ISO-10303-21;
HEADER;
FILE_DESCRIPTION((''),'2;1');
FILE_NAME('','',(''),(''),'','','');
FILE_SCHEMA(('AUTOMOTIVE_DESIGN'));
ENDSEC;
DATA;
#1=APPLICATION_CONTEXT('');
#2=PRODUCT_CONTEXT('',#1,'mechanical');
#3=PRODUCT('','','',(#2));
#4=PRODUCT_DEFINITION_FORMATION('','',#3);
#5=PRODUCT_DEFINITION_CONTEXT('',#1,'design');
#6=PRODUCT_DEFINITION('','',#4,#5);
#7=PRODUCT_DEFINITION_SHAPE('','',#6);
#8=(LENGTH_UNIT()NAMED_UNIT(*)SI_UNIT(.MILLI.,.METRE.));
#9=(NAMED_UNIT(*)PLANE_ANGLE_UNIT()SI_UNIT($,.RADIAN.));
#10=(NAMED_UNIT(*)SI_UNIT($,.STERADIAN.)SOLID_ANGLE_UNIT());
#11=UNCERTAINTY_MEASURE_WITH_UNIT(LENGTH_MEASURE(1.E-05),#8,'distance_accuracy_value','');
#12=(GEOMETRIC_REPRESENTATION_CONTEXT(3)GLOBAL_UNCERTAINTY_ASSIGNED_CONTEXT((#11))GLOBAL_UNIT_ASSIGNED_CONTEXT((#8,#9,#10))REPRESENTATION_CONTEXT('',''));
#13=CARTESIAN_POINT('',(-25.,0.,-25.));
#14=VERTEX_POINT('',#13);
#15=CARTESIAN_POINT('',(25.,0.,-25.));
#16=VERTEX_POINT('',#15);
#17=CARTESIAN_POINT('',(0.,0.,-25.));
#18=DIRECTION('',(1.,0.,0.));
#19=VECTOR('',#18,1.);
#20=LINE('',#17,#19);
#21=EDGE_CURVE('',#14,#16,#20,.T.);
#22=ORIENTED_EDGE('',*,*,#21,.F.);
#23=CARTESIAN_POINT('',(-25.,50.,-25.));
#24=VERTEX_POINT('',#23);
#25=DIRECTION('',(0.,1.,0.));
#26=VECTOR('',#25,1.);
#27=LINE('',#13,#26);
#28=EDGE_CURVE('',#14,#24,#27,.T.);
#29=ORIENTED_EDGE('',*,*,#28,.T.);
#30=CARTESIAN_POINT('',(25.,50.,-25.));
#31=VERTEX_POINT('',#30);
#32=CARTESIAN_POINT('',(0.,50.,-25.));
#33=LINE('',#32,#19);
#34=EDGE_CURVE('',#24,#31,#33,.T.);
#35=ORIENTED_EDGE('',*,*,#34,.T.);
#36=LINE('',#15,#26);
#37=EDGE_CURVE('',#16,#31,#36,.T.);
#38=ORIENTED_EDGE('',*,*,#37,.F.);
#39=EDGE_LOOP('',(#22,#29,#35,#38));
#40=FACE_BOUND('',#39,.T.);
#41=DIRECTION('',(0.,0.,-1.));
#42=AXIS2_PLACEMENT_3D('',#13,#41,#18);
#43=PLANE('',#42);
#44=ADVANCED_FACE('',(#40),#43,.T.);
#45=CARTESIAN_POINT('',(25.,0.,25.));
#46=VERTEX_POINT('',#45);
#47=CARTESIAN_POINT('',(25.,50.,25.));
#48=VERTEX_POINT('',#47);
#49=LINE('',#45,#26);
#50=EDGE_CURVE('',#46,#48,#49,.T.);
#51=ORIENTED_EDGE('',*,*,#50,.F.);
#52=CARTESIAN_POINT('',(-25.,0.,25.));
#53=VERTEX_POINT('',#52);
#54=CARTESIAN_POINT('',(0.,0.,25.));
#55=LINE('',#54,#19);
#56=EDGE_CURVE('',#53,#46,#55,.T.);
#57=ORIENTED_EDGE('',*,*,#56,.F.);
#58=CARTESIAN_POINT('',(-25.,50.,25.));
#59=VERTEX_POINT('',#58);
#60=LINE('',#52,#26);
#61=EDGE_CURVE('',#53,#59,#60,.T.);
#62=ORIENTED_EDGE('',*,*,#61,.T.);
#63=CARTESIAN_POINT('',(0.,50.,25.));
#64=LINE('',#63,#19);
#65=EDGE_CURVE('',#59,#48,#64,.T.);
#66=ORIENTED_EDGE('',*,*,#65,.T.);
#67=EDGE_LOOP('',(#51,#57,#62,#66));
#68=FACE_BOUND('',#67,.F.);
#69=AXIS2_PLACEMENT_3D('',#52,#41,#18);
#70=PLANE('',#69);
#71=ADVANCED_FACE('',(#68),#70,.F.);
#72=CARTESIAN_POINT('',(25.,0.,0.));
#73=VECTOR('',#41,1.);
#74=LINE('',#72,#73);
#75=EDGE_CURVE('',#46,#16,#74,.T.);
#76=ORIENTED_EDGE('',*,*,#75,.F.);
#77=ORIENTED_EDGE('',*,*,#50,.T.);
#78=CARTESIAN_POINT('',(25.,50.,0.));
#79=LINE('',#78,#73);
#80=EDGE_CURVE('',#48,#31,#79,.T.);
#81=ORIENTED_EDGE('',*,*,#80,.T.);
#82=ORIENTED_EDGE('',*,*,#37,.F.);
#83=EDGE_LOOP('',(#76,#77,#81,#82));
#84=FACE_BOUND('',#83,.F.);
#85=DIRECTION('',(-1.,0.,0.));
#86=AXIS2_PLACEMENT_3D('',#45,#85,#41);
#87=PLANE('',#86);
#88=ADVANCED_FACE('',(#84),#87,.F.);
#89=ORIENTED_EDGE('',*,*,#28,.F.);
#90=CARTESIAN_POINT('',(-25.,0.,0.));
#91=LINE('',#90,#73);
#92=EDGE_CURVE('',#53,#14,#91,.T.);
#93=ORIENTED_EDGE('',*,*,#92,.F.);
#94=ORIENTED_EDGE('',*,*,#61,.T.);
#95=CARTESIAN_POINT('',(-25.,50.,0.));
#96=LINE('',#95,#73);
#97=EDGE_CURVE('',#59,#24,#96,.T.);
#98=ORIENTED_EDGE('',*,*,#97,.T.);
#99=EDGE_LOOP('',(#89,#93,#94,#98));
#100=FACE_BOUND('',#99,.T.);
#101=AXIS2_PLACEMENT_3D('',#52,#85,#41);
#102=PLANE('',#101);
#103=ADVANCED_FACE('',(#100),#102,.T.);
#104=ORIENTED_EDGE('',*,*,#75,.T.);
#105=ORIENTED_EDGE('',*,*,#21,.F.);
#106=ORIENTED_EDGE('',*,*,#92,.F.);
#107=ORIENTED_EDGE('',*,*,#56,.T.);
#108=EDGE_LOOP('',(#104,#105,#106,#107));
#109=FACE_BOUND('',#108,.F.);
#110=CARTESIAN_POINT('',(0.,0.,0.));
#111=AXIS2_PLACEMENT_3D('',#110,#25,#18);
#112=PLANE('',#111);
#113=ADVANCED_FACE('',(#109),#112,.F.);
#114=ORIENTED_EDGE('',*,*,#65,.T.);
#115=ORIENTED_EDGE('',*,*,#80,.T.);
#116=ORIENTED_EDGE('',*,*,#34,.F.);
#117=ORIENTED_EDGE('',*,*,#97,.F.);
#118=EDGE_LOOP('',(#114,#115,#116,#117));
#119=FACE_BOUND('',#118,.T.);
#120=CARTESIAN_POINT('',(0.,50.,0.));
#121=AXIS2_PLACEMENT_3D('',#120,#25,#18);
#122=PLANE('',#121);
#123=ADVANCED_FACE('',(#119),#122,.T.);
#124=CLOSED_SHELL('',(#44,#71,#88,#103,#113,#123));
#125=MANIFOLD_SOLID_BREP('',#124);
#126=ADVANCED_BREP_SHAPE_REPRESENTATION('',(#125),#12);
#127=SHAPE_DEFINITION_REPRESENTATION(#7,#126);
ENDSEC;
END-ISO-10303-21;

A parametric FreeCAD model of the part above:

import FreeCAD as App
import Part
import Sketcher
Q = App.Units.Quantity

doc = App.newDocument("Part")
body = doc.addObject("PartDesign::Body", "Body")

# Sketch on XZ plane
sketch1 = body.newObject("Sketcher::SketchObject", "Sketch")
sketch1.AttachmentSupport = (doc.getObject("XZ_Plane"), [""])
sketch1.MapMode = "FlatFace"
sketch1.addGeometry([
    Part.LineSegment(App.Vector(-25, -25, 0), App.Vector(-25, 25, 0)),
    Part.LineSegment(App.Vector(-25, 25, 0), App.Vector(25, 25, 0)),
    Part.LineSegment(App.Vector(25, 25, 0), App.Vector(25, -25, 0)),
    Part.LineSegment(App.Vector(25, -25, 0), App.Vector(-25, -25, 0)),
], False)
sketch1.addConstraint([
    Sketcher.Constraint("Coincident", 0, 2, 1, 1),
    Sketcher.Constraint("Coincident", 1, 2, 2, 1),
    Sketcher.Constraint("Coincident", 2, 2, 3, 1),
    Sketcher.Constraint("Coincident", 3, 2, 0, 1),
    Sketcher.Constraint("Vertical", 0),
    Sketcher.Constraint("Horizontal", 1),
    Sketcher.Constraint("Vertical", 2),
    Sketcher.Constraint("Horizontal", 3),
    Sketcher.Constraint("Symmetric", 0, 2, 2, 2, -1, 1),
    Sketcher.Constraint("Equal", 3, 0),
    Sketcher.Constraint("DistanceX", 1, 1, 1, 2, Q("50 mm")),
])
pad1 = body.newObject("PartDesign::Pad", "Pad")
pad1.Profile = sketch1
pad1.Length = 50
pad1.Reversed = True

doc.recompute()
